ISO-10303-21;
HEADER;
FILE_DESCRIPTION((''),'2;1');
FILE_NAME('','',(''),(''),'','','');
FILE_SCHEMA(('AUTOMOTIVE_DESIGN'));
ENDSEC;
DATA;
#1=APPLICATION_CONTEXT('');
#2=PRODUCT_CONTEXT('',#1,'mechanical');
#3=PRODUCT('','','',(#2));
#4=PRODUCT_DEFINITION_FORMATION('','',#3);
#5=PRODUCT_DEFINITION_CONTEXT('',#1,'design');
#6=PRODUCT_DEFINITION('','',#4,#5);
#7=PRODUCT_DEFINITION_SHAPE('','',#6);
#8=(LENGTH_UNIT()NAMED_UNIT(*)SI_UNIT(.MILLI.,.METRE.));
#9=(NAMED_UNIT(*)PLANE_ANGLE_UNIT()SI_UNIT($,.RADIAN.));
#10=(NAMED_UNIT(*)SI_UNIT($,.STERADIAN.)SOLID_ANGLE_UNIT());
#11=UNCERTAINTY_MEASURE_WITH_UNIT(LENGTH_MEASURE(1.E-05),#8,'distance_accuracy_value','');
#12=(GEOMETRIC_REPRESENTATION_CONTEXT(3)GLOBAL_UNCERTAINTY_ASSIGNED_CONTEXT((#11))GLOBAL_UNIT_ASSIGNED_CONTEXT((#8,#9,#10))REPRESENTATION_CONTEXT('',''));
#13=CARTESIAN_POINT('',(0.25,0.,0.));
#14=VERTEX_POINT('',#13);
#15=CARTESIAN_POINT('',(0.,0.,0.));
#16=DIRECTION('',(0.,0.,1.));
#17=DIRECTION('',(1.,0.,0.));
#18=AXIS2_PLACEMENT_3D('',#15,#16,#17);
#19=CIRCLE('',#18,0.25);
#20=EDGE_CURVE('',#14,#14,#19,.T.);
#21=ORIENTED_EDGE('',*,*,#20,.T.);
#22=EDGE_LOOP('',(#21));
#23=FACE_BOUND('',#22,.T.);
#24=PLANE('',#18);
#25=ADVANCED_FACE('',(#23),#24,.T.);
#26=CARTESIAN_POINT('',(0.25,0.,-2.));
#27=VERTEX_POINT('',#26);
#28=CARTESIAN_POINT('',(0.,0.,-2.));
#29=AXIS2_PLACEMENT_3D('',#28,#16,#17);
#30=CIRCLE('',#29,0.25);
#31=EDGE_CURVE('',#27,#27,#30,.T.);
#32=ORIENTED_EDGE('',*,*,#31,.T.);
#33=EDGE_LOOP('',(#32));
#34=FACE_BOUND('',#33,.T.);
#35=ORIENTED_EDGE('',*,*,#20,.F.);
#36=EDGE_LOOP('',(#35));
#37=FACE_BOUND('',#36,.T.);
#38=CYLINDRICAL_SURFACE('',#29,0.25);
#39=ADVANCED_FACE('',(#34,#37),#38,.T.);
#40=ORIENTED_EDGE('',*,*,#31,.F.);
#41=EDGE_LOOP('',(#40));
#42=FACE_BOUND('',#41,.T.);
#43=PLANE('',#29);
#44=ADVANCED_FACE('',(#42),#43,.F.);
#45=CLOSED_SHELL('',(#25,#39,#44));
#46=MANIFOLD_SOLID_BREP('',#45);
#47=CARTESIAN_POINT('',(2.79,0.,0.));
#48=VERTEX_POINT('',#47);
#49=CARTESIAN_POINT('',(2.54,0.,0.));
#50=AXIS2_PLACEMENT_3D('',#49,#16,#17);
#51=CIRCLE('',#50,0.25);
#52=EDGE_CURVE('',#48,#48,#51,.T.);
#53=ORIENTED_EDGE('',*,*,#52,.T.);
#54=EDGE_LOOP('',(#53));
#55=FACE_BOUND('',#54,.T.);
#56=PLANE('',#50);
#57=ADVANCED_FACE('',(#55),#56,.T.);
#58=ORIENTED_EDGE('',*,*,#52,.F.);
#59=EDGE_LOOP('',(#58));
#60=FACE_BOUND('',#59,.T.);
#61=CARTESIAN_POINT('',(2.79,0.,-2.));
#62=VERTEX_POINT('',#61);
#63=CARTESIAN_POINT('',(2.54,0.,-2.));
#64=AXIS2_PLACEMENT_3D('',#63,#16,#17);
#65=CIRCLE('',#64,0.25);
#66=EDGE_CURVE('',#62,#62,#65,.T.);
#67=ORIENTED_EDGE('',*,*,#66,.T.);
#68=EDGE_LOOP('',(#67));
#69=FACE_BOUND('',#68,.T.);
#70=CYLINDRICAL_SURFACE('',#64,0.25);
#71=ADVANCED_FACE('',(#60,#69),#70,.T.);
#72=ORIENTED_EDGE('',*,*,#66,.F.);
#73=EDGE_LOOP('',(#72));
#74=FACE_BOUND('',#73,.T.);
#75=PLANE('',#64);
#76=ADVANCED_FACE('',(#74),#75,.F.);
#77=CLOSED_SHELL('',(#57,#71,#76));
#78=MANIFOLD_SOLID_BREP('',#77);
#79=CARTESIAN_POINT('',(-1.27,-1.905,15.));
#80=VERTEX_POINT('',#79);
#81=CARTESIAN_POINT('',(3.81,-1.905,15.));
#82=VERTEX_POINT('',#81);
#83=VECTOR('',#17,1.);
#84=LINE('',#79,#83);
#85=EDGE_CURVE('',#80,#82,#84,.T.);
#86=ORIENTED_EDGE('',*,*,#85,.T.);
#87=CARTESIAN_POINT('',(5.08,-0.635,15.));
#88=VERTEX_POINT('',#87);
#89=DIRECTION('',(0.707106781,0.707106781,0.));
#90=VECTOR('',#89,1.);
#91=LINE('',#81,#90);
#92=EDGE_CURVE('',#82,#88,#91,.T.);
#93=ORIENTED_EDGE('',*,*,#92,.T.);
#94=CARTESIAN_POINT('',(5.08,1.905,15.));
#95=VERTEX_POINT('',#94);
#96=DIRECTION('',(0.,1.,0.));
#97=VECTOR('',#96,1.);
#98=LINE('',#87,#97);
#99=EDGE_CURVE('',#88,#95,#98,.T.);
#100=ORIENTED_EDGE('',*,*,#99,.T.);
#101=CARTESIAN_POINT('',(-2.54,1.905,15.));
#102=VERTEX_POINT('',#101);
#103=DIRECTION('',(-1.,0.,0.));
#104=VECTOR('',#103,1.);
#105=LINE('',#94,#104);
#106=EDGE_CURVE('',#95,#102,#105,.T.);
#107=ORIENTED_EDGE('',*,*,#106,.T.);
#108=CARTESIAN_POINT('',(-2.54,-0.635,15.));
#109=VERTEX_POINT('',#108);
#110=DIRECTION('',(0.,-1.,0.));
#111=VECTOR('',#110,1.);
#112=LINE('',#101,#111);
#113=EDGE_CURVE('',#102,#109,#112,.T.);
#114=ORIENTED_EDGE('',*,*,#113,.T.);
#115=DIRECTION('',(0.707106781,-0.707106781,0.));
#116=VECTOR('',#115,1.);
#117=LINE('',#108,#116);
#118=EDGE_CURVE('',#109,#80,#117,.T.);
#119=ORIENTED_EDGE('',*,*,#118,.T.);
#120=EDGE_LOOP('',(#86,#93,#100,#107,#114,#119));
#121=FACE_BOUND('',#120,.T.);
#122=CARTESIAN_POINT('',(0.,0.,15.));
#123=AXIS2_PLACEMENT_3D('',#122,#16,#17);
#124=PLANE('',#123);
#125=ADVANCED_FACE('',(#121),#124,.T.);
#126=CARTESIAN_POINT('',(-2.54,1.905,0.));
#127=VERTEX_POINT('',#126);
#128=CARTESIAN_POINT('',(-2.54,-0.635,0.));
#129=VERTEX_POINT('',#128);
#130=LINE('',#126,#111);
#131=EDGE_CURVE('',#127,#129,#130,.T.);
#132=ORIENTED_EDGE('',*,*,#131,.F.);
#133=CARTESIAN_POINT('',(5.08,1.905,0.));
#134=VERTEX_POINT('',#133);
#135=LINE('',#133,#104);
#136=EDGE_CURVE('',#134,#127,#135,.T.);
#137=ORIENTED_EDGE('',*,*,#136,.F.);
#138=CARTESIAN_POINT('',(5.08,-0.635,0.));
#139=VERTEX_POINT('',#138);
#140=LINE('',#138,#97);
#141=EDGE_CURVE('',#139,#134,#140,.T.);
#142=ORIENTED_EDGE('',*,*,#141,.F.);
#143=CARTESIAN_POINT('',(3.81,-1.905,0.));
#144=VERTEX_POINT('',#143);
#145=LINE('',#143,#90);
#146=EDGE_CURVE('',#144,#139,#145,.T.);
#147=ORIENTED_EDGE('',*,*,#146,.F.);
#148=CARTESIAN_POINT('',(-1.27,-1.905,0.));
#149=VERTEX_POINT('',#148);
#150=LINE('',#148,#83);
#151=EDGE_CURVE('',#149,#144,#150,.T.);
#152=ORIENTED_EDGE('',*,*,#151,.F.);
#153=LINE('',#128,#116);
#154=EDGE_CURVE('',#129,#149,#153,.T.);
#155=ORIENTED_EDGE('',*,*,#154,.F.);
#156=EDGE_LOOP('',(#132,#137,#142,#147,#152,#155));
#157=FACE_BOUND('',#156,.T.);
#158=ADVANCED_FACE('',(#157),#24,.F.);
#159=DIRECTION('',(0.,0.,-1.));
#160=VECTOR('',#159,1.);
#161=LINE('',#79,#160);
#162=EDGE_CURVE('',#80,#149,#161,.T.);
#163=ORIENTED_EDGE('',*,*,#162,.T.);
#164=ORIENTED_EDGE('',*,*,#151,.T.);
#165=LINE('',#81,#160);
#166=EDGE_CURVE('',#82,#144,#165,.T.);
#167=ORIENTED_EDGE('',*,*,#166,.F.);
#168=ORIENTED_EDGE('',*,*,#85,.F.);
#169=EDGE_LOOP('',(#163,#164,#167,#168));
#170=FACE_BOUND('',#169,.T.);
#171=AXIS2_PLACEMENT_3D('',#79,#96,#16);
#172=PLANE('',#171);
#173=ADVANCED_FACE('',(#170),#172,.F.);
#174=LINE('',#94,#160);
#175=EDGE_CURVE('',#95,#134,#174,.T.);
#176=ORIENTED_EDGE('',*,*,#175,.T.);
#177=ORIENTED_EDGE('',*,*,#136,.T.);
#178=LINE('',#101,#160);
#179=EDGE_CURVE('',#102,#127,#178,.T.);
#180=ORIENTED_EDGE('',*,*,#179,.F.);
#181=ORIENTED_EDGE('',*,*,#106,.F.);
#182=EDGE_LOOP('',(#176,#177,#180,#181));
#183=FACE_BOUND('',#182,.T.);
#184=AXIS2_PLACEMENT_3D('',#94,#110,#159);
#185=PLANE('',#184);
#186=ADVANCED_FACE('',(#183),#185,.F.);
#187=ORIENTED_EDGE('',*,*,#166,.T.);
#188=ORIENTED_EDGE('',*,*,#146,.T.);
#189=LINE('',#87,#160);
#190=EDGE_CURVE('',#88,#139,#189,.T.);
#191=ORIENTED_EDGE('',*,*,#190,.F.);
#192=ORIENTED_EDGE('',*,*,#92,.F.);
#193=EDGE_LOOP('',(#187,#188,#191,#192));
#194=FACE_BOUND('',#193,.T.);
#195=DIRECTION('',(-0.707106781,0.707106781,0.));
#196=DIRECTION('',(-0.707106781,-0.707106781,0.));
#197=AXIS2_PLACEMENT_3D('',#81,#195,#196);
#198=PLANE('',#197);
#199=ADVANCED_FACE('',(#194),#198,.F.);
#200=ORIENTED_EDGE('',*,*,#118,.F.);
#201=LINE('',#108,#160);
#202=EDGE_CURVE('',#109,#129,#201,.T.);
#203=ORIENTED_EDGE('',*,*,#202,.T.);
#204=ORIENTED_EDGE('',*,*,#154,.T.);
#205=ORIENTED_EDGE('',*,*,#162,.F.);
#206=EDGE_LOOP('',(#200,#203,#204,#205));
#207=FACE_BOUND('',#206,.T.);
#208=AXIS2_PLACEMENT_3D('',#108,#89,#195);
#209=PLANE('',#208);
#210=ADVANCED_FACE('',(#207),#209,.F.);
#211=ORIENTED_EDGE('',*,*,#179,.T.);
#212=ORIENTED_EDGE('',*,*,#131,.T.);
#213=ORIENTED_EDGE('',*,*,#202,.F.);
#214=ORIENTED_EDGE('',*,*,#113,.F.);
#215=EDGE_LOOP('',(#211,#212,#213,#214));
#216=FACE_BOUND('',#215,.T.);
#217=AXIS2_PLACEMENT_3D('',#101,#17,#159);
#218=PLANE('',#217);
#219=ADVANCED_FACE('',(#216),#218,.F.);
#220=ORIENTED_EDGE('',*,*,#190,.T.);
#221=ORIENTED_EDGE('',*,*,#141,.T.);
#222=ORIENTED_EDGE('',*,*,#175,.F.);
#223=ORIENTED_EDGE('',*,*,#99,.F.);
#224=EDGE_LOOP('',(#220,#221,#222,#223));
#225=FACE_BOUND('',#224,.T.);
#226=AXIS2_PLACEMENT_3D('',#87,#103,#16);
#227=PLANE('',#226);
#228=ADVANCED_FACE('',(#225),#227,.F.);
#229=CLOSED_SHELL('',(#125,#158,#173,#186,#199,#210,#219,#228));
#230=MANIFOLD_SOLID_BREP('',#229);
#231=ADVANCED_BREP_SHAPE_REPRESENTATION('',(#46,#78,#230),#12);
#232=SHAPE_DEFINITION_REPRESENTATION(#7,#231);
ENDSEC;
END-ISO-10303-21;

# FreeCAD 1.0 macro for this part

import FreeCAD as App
import Part
import Sketcher
from FreeCAD import Vector

doc = App.newDocument("Part")
body = doc.addObject("PartDesign::Body", "Body")

sketch1 = body.newObject("Sketcher::SketchObject", "Sketch")
sketch1.AttachmentSupport = (doc.getObject("XY_Plane"), [""])
sketch1.MapMode = "FlatFace"
sketch1.addGeometry([
    Part.LineSegment(Vector(-2.5, 1.9, 0), Vector(-2.5, -0.6, 0)),
    Part.LineSegment(Vector(-2.5, -0.6, 0), Vector(-1.3, -1.9, 0)),
    Part.LineSegment(Vector(-1.3, -1.9, 0), Vector(3.8, -1.9, 0)),
    Part.LineSegment(Vector(3.8, -1.9, 0), Vector(5.1, -0.6, 0)),
    Part.LineSegment(Vector(5.1, -0.6, 0), Vector(5.1, 1.9, 0)),
    Part.LineSegment(Vector(5.1, 1.9, 0), Vector(-2.5, 1.9, 0)),
], False)
sketch1.addConstraint([
    Sketcher.Constraint("Coincident", 0, 2, 1, 1),
    Sketcher.Constraint("Coincident", 1, 2, 2, 1),
    Sketcher.Constraint("Coincident", 2, 2, 3, 1),
    Sketcher.Constraint("Coincident", 3, 2, 4, 1),
    Sketcher.Constraint("Coincident", 4, 2, 5, 1),
    Sketcher.Constraint("Coincident", 5, 2, 0, 1),
    Sketcher.Constraint("Vertical", 0),
    Sketcher.Constraint("Horizontal", 2),
    Sketcher.Constraint("Vertical", 4),
    Sketcher.Constraint("Horizontal", 5),
    Sketcher.Constraint("Perpendicular", 1, 3),
    Sketcher.Constraint("Horizontal", 0, 2, 3, 2),
    Sketcher.Constraint("Equal", 1, 3),
    Sketcher.Constraint("DistanceX", 2, 1, 2, 2, 5.08),
    Sketcher.Constraint("DistanceX", 5, 2, 5, 1, 7.62),
    Sketcher.Constraint("DistanceY", 0, 2, 0, 1, 2.54),
    Sketcher.Constraint("DistanceX", 0, 2, -1, 1, 2.54),
    Sketcher.Constraint("DistanceY", 0, 2, -1, 1, 0.635),
])
pad1 = body.newObject("PartDesign::Pad", "Pad")
pad1.Profile = sketch1
pad1.Length = 15
body2 = doc.addObject("PartDesign::Body", "Body001")

sketch2 = body2.newObject("Sketcher::SketchObject", "Sketch001")
sketch2.AttachmentSupport = (doc.getObject("XY_Plane001"), [""])
sketch2.MapMode = "FlatFace"
sketch2.addGeometry(Part.Circle(Vector(0, 0, 0), Vector(0, 0, 1), 0.25), False)
sketch2.addConstraint([
    Sketcher.Constraint("Coincident", 0, 3, -1, 1),
    Sketcher.Constraint("Diameter", 0, 0.5),
])
pad2 = body2.newObject("PartDesign::Pad", "Pad001")
pad2.Profile = sketch2
pad2.Length = 2
pad2.Reversed = True
body3 = doc.addObject("PartDesign::Body", "Body002")

sketch3 = body3.newObject("Sketcher::SketchObject", "Sketch002")
sketch3.AttachmentSupport = (doc.getObject("XY_Plane002"), [""])
sketch3.MapMode = "FlatFace"
sketch3.addGeometry(Part.Circle(Vector(2.54, 0, 0), Vector(0, 0, 1), 0.25), False)
sketch3.addConstraint([
    Sketcher.Constraint("PointOnObject", 0, 3, -1),
    Sketcher.Constraint("Diameter", 0, 0.5),
    Sketcher.Constraint("DistanceX", -1, 1, 0, 3, 2.54),
])
pad3 = body3.newObject("PartDesign::Pad", "Pad002")
pad3.Profile = sketch3
pad3.Length = 2
pad3.Reversed = True

doc.recompute()
